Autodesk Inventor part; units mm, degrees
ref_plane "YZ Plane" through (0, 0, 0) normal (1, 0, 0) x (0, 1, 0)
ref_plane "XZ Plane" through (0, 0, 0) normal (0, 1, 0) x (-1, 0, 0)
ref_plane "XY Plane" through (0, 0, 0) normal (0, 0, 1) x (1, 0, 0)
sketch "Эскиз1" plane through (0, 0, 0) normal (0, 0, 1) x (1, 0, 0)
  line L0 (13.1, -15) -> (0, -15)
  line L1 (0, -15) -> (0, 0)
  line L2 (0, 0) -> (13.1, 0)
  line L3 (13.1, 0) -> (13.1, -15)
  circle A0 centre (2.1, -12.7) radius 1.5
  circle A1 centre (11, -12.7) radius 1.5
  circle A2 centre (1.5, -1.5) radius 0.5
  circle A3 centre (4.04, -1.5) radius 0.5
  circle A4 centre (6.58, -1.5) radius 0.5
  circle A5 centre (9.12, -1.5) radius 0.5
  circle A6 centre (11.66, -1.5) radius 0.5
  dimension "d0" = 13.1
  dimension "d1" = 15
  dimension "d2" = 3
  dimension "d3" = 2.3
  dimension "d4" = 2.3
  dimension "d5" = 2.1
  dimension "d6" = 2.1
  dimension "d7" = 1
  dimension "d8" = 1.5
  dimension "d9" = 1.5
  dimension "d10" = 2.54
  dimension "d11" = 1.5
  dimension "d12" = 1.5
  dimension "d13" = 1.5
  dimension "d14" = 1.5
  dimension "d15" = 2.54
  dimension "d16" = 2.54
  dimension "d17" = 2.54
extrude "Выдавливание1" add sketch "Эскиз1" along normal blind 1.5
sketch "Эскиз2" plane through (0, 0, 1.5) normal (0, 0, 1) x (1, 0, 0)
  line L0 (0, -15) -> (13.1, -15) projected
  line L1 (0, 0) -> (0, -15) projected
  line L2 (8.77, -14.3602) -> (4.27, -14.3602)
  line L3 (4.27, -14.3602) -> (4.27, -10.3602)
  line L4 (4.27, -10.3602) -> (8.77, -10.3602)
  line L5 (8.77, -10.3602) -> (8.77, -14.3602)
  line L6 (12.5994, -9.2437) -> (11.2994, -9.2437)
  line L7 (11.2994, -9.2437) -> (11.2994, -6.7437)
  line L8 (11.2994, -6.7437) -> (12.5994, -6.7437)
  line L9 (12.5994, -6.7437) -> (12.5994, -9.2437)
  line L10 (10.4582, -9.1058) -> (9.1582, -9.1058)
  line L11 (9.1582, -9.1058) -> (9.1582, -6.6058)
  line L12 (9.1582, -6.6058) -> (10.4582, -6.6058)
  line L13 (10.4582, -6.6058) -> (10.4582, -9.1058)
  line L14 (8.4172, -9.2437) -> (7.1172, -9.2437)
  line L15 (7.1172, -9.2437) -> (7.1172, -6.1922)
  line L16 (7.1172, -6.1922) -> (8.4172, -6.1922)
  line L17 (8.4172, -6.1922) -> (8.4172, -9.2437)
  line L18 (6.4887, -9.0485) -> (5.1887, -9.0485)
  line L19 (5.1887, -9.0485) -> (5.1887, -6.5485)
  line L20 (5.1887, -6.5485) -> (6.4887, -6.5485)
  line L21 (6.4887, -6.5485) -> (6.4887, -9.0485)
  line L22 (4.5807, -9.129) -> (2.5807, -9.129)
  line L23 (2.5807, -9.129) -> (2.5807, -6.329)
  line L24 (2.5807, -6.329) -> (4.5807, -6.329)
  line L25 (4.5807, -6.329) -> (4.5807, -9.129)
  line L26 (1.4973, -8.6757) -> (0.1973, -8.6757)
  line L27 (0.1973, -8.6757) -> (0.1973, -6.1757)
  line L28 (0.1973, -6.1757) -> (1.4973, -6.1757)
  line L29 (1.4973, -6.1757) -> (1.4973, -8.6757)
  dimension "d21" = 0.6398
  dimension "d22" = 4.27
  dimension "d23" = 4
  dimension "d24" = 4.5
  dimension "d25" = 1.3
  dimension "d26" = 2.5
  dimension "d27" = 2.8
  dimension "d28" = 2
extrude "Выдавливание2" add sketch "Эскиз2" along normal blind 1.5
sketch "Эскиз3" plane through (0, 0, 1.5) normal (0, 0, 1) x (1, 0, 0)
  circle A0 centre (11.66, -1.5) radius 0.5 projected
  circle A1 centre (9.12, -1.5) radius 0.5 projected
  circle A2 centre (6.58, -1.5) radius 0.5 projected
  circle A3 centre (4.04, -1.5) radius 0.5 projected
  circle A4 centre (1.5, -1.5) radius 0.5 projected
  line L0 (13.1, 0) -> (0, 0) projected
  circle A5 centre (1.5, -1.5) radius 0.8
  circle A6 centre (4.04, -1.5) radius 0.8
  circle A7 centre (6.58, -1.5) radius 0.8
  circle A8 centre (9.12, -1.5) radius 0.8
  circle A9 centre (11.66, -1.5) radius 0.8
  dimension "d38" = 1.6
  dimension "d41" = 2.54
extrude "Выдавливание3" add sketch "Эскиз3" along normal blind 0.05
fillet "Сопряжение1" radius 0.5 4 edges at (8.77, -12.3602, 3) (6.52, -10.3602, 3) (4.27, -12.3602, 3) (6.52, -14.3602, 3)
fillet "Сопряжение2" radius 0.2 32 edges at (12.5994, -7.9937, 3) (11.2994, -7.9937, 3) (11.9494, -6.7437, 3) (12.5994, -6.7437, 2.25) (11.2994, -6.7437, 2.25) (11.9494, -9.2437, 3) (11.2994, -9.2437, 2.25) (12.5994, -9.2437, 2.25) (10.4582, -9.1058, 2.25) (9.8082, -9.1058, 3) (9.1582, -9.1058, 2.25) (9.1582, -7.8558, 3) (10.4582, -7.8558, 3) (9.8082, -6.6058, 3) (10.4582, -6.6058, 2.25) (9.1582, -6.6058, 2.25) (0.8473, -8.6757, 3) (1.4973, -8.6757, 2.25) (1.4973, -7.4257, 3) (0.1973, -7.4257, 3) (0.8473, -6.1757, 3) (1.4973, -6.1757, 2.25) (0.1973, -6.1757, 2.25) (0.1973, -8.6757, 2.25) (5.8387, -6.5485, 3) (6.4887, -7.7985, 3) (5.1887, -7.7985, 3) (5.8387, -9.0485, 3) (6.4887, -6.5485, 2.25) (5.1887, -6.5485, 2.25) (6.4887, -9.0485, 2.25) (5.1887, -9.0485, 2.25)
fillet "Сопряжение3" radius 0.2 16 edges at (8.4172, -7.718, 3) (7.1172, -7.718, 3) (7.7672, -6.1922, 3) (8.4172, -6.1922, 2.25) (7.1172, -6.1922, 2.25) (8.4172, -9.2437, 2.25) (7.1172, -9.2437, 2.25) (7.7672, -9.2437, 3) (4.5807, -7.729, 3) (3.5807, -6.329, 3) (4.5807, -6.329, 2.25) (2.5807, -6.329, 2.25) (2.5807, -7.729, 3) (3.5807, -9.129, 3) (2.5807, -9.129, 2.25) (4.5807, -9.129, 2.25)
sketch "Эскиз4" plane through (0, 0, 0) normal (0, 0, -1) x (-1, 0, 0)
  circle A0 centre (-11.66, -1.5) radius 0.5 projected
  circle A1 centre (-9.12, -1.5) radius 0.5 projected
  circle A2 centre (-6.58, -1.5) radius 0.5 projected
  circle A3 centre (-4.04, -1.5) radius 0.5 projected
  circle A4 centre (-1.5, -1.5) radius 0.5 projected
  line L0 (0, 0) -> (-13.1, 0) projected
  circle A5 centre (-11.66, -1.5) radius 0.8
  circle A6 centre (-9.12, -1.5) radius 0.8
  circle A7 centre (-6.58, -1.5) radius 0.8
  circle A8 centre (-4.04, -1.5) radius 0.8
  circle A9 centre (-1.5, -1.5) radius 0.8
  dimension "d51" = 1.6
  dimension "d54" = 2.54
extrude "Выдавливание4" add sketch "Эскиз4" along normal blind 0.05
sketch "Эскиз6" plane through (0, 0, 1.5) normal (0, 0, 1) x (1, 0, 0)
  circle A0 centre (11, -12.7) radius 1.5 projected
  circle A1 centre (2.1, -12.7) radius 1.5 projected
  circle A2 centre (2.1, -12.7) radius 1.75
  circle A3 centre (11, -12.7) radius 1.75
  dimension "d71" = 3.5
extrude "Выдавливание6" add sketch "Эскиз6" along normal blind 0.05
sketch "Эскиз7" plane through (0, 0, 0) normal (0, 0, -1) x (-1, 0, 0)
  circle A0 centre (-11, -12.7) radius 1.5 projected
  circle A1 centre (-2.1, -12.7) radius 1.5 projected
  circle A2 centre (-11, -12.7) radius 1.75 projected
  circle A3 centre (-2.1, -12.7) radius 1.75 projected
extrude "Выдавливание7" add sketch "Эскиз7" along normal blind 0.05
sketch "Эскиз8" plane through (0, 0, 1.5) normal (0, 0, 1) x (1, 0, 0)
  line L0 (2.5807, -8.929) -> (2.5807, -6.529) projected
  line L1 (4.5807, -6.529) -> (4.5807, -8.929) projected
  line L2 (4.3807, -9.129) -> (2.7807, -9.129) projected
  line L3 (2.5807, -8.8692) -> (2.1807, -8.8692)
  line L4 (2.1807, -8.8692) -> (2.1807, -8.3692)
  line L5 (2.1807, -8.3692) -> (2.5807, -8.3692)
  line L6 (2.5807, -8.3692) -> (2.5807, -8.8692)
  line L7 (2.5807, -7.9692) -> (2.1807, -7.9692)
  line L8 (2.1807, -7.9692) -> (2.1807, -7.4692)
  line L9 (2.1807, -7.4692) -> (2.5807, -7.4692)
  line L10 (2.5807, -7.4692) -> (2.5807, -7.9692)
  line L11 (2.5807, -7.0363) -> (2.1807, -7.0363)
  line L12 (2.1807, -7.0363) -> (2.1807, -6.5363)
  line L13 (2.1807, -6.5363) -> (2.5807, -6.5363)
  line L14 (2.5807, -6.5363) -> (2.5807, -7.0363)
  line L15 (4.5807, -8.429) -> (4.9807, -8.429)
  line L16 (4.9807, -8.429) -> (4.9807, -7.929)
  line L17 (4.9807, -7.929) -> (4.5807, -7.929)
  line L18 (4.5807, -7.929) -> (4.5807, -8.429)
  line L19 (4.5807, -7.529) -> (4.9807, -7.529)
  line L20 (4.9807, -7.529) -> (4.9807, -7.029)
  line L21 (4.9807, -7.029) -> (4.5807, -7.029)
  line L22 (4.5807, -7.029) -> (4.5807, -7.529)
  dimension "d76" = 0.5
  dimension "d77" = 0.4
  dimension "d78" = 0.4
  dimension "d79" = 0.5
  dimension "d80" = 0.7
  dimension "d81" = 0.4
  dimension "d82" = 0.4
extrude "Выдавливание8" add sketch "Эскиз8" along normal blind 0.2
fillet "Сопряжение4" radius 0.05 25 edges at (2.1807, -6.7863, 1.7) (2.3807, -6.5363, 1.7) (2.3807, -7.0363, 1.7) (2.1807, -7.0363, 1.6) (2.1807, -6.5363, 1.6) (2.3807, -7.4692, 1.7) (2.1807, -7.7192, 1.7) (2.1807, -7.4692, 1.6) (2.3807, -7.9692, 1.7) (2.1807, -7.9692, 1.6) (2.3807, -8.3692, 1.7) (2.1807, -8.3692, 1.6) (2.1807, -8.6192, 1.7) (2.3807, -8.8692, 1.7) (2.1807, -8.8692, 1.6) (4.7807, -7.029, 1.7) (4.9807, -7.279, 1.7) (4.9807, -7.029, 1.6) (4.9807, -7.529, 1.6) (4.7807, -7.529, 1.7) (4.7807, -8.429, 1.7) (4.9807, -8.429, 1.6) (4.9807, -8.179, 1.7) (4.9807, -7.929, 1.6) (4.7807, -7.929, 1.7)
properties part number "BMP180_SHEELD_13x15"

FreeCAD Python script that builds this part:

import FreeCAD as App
import Part
import Sketcher

V = App.Vector
Q = App.Units.Quantity


def edges_at(feature, points):
    """Names of the edges that pass closest to the given points."""
    edges = feature.Shape.Edges
    near = lambda p: min(range(len(edges)), key=lambda i: edges[i].distToShape(Part.Vertex(*p))[0])
    return sorted({f"Edge{near(p) + 1}" for p in points})

doc = App.newDocument("Part")
body = doc.addObject("PartDesign::Body", "Body")

sketch1 = body.newObject("Sketcher::SketchObject", "Sketch")
sketch1.AttachmentSupport = (doc.getObject("XY_Plane"), [""])
sketch1.MapMode = "FlatFace"
sketch1.addGeometry(Part.LineSegment(V(0, -15, 0), V(13.1, -15, 0)), False)
sketch1.addGeometry(Part.LineSegment(V(13.1, -15, 0), V(13.1, 0, 0)), False)
sketch1.addGeometry(Part.LineSegment(V(13.1, 0, 0), V(0, 0, 0)), False)
sketch1.addGeometry(Part.LineSegment(V(0, 0, 0), V(0, -15, 0)), False)
sketch1.addGeometry(Part.Circle(V(2.1, -12.7, 0), V(0, 0, 1), 1.5), False)
sketch1.addGeometry(Part.Circle(V(11, -12.7, 0), V(0, 0, 1), 1.5), False)
sketch1.addGeometry(Part.Circle(V(1.5, -1.5, 0), V(0, 0, 1), 0.5), False)
sketch1.addGeometry(Part.Circle(V(4.04, -1.5, 0), V(0, 0, 1), 0.5), False)
sketch1.addGeometry(Part.Circle(V(6.58, -1.5, 0), V(0, 0, 1), 0.5), False)
sketch1.addGeometry(Part.Circle(V(9.12, -1.5, 0), V(0, 0, 1), 0.5), False)
sketch1.addGeometry(Part.Circle(V(11.66, -1.5, 0), V(0, 0, 1), 0.5), False)
sketch1.addConstraint(Sketcher.Constraint("Coincident", 0, 2, 1, 1))
sketch1.addConstraint(Sketcher.Constraint("Coincident", 1, 2, 2, 1))
sketch1.addConstraint(Sketcher.Constraint("Coincident", 2, 2, 3, 1))
sketch1.addConstraint(Sketcher.Constraint("Coincident", 3, 2, 0, 1))
sketch1.addConstraint(Sketcher.Constraint("Horizontal", 0))
sketch1.addConstraint(Sketcher.Constraint("Vertical", 1))
sketch1.addConstraint(Sketcher.Constraint("Horizontal", 2))
sketch1.addConstraint(Sketcher.Constraint("Vertical", 3))
sketch1.addConstraint(Sketcher.Constraint("Coincident", 2, 2, -1, 1))
sketch1.addConstraint(Sketcher.Constraint("Equal", 4, 5))
sketch1.addConstraint(Sketcher.Constraint("Equal", 6, 7))
sketch1.addConstraint(Sketcher.Constraint("Equal", 7, 8))
sketch1.addConstraint(Sketcher.Constraint("Equal", 8, 9))
sketch1.addConstraint(Sketcher.Constraint("Equal", 9, 10))
sketch1.addConstraint(Sketcher.Constraint("Horizontal", 4, 3, 5, 3))
sketch1.addConstraint(Sketcher.Constraint("Horizontal", 6, 3, 7, 3))
sketch1.addConstraint(Sketcher.Constraint("Horizontal", 7, 3, 8, 3))
sketch1.addConstraint(Sketcher.Constraint("Horizontal", 8, 3, 9, 3))
sketch1.addConstraint(Sketcher.Constraint("Horizontal", 9, 3, 10, 3))
sketch1.addConstraint(Sketcher.Constraint("Diameter", 4, Q("3 mm")))
sketch1.addConstraint(Sketcher.Constraint("Diameter", 6, Q("1 mm")))
sketch1.addConstraint(Sketcher.Constraint("DistanceY", 1, 1, 1, 2, Q("15 mm")))
sketch1.addConstraint(Sketcher.Constraint("DistanceX", 0, 1, 0, 2, Q("13.1 mm")))
sketch1.addConstraint(Sketcher.Constraint("DistanceX", -1, 1, 4, 3, Q("2.1 mm")))
sketch1.addConstraint(Sketcher.Constraint("DistanceX", -1, 1, 6, 3, Q("1.5 mm")))
sketch1.addConstraint(Sketcher.Constraint("DistanceY", 6, 3, -1, 1, Q("1.5 mm")))
sketch1.addConstraint(Sketcher.Constraint("DistanceX", 5, 3, 0, 2, Q("2.1 mm")))
sketch1.addConstraint(Sketcher.Constraint("DistanceY", 0, 2, 5, 3, Q("2.3 mm")))
sketch1.addConstraint(Sketcher.Constraint("DistanceX", 6, 3, 7, 3, Q("2.54 mm")))
sketch1.addConstraint(Sketcher.Constraint("DistanceX", 7, 3, 8, 3, Q("2.54 mm")))
sketch1.addConstraint(Sketcher.Constraint("DistanceX", 8, 3, 9, 3, Q("2.54 mm")))
sketch1.addConstraint(Sketcher.Constraint("DistanceX", 9, 3, 10, 3, Q("2.54 mm")))
pad1 = body.newObject("PartDesign::Pad", "Pad")
pad1.Profile = sketch1
pad1.Length = 1.5

sketch2 = body.newObject("Sketcher::SketchObject", "Sketch001")
sketch2.AttachmentSupport = (doc.getObject("XY_Plane"), [""])
sketch2.MapMode = "FlatFace"
sketch2.AttachmentOffset = App.Placement(V(0, 0, 1.5), App.Rotation())
sketch2.addGeometry(Part.LineSegment(V(4.27, -14.3602, 0), V(8.77, -14.3602, 0)), False)
sketch2.addGeometry(Part.LineSegment(V(8.77, -14.3602, 0), V(8.77, -10.3602, 0)), False)
sketch2.addGeometry(Part.LineSegment(V(8.77, -10.3602, 0), V(4.27, -10.3602, 0)), False)
sketch2.addGeometry(Part.LineSegment(V(4.27, -10.3602, 0), V(4.27, -14.3602, 0)), False)
sketch2.addGeometry(Part.LineSegment(V(11.2994, -9.2437, 0), V(12.5994, -9.2437, 0)), False)
sketch2.addGeometry(Part.LineSegment(V(12.5994, -9.2437, 0), V(12.5994, -6.7437, 0)), False)
sketch2.addGeometry(Part.LineSegment(V(12.5994, -6.7437, 0), V(11.2994, -6.7437, 0)), False)
sketch2.addGeometry(Part.LineSegment(V(11.2994, -6.7437, 0), V(11.2994, -9.2437, 0)), False)
sketch2.addGeometry(Part.LineSegment(V(9.1582, -9.1058, 0), V(10.4582, -9.1058, 0)), False)
sketch2.addGeometry(Part.LineSegment(V(10.4582, -9.1058, 0), V(10.4582, -6.6058, 0)), False)
sketch2.addGeometry(Part.LineSegment(V(10.4582, -6.6058, 0), V(9.1582, -6.6058, 0)), False)
sketch2.addGeometry(Part.LineSegment(V(9.1582, -6.6058, 0), V(9.1582, -9.1058, 0)), False)
sketch2.addGeometry(Part.LineSegment(V(7.1172, -9.2437, 0), V(8.4172, -9.2437, 0)), False)
sketch2.addGeometry(Part.LineSegment(V(8.4172, -9.2437, 0), V(8.4172, -6.1922, 0)), False)
sketch2.addGeometry(Part.LineSegment(V(8.4172, -6.1922, 0), V(7.1172, -6.1922, 0)), False)
sketch2.addGeometry(Part.LineSegment(V(7.1172, -6.1922, 0), V(7.1172, -9.2437, 0)), False)
sketch2.addGeometry(Part.LineSegment(V(5.1887, -9.0485, 0), V(6.4887, -9.0485, 0)), False)
sketch2.addGeometry(Part.LineSegment(V(6.4887, -9.0485, 0), V(6.4887, -6.5485, 0)), False)
sketch2.addGeometry(Part.LineSegment(V(6.4887, -6.5485, 0), V(5.1887, -6.5485, 0)), False)
sketch2.addGeometry(Part.LineSegment(V(5.1887, -6.5485, 0), V(5.1887, -9.0485, 0)), False)
sketch2.addGeometry(Part.LineSegment(V(2.5807, -9.129, 0), V(4.5807, -9.129, 0)), False)
sketch2.addGeometry(Part.LineSegment(V(4.5807, -9.129, 0), V(4.5807, -6.329, 0)), False)
sketch2.addGeometry(Part.LineSegment(V(4.5807, -6.329, 0), V(2.5807, -6.329, 0)), False)
sketch2.addGeometry(Part.LineSegment(V(2.5807, -6.329, 0), V(2.5807, -9.129, 0)), False)
sketch2.addGeometry(Part.LineSegment(V(0.1973, -8.6757, 0), V(1.4973, -8.6757, 0)), False)
sketch2.addGeometry(Part.LineSegment(V(1.4973, -8.6757, 0), V(1.4973, -6.1757, 0)), False)
sketch2.addGeometry(Part.LineSegment(V(1.4973, -6.1757, 0), V(0.1973, -6.1757, 0)), False)
sketch2.addGeometry(Part.LineSegment(V(0.1973, -6.1757, 0), V(0.1973, -8.6757, 0)), False)
sketch2.addConstraint(Sketcher.Constraint("Coincident", 0, 2, 1, 1))
sketch2.addConstraint(Sketcher.Constraint("Coincident", 1, 2, 2, 1))
sketch2.addConstraint(Sketcher.Constraint("Coincident", 2, 2, 3, 1))
sketch2.addConstraint(Sketcher.Constraint("Coincident", 3, 2, 0, 1))
sketch2.addConstraint(Sketcher.Constraint("Coincident", 4, 2, 5, 1))
sketch2.addConstraint(Sketcher.Constraint("Coincident", 5, 2, 6, 1))
sketch2.addConstraint(Sketcher.Constraint("Coincident", 6, 2, 7, 1))
sketch2.addConstraint(Sketcher.Constraint("Coincident", 7, 2, 4, 1))
sketch2.addConstraint(Sketcher.Constraint("Coincident", 8, 2, 9, 1))
sketch2.addConstraint(Sketcher.Constraint("Coincident", 9, 2, 10, 1))
sketch2.addConstraint(Sketcher.Constraint("Coincident", 10, 2, 11, 1))
sketch2.addConstraint(Sketcher.Constraint("Coincident", 11, 2, 8, 1))
sketch2.addConstraint(Sketcher.Constraint("Coincident", 12, 2, 13, 1))
sketch2.addConstraint(Sketcher.Constraint("Coincident", 13, 2, 14, 1))
sketch2.addConstraint(Sketcher.Constraint("Coincident", 14, 2, 15, 1))
sketch2.addConstraint(Sketcher.Constraint("Coincident", 15, 2, 12, 1))
sketch2.addConstraint(Sketcher.Constraint("Coincident", 16, 2, 17, 1))
sketch2.addConstraint(Sketcher.Constraint("Coincident", 17, 2, 18, 1))
sketch2.addConstraint(Sketcher.Constraint("Coincident", 18, 2, 19, 1))
sketch2.addConstraint(Sketcher.Constraint("Coincident", 19, 2, 16, 1))
sketch2.addConstraint(Sketcher.Constraint("Coincident", 20, 2, 21, 1))
sketch2.addConstraint(Sketcher.Constraint("Coincident", 21, 2, 22, 1))
sketch2.addConstraint(Sketcher.Constraint("Coincident", 22, 2, 23, 1))
sketch2.addConstraint(Sketcher.Constraint("Coincident", 23, 2, 20, 1))
sketch2.addConstraint(Sketcher.Constraint("Coincident", 24, 2, 25, 1))
sketch2.addConstraint(Sketcher.Constraint("Coincident", 25, 2, 26, 1))
sketch2.addConstraint(Sketcher.Constraint("Coincident", 26, 2, 27, 1))
sketch2.addConstraint(Sketcher.Constraint("Coincident", 27, 2, 24, 1))
sketch2.addConstraint(Sketcher.Constraint("Horizontal", 0))
sketch2.addConstraint(Sketcher.Constraint("Vertical", 1))
sketch2.addConstraint(Sketcher.Constraint("Horizontal", 2))
sketch2.addConstraint(Sketcher.Constraint("Vertical", 3))
sketch2.addConstraint(Sketcher.Constraint("Horizontal", 4))
sketch2.addConstraint(Sketcher.Constraint("Vertical", 5))
sketch2.addConstraint(Sketcher.Constraint("Horizontal", 6))
sketch2.addConstraint(Sketcher.Constraint("Vertical", 7))
sketch2.addConstraint(Sketcher.Constraint("Horizontal", 8))
sketch2.addConstraint(Sketcher.Constraint("Vertical", 9))
sketch2.addConstraint(Sketcher.Constraint("Horizontal", 10))
sketch2.addConstraint(Sketcher.Constraint("Vertical", 11))
sketch2.addConstraint(Sketcher.Constraint("Horizontal", 12))
sketch2.addConstraint(Sketcher.Constraint("Vertical", 13))
sketch2.addConstraint(Sketcher.Constraint("Horizontal", 14))
sketch2.addConstraint(Sketcher.Constraint("Vertical", 15))
sketch2.addConstraint(Sketcher.Constraint("Horizontal", 16))
sketch2.addConstraint(Sketcher.Constraint("Vertical", 17))
sketch2.addConstraint(Sketcher.Constraint("Horizontal", 18))
sketch2.addConstraint(Sketcher.Constraint("Vertical", 19))
sketch2.addConstraint(Sketcher.Constraint("Horizontal", 20))
sketch2.addConstraint(Sketcher.Constraint("Vertical", 21))
sketch2.addConstraint(Sketcher.Constraint("Horizontal", 22))
sketch2.addConstraint(Sketcher.Constraint("Vertical", 23))
sketch2.addConstraint(Sketcher.Constraint("Horizontal", 24))
sketch2.addConstraint(Sketcher.Constraint("Vertical", 25))
sketch2.addConstraint(Sketcher.Constraint("Horizontal", 26))
sketch2.addConstraint(Sketcher.Constraint("Vertical", 27))
sketch2.addConstraint(Sketcher.Constraint("Horizontal", 7, 2, 12, 2))
sketch2.addConstraint(Sketcher.Constraint("Equal", 6, 8))
sketch2.addConstraint(Sketcher.Constraint("Equal", 10, 12))
sketch2.addConstraint(Sketcher.Constraint("Equal", 14, 16))
sketch2.addConstraint(Sketcher.Constraint("Equal", 18, 24))
sketch2.addConstraint(Sketcher.Constraint("Equal", 7, 9))
sketch2.addConstraint(Sketcher.Constraint("Equal", 11, 17))
sketch2.addConstraint(Sketcher.Constraint("Equal", 19, 25))
sketch2.addConstraint(Sketcher.Constraint("DistanceX", 20, 1, 20, 2, Q("2 mm")))
sketch2.addConstraint(Sketcher.Constraint("DistanceY", 1, 1, 1, 2, Q("4 mm")))
sketch2.addConstraint(Sketcher.Constraint("DistanceX", 0, 1, 0, 2, Q("4.5 mm")))
sketch2.addConstraint(Sketcher.Constraint("DistanceX", 4, 1, 4, 2, Q("1.3 mm")))
sketch2.addConstraint(Sketcher.Constraint("DistanceY", 5, 1, 5, 2, Q("2.5 mm")))
sketch2.addConstraint(Sketcher.Constraint("DistanceY", 21, 1, 21, 2, Q("2.8 mm")))
sketch2.addConstraint(Sketcher.Constraint("DistanceX", -1, 1, 2, 2, Q("4.27 mm")))
sketch2.addConstraint(Sketcher.Constraint("DistanceY", 13, 1, 13, 2, Q("3.0515 mm")))
sketch2.addConstraint(Sketcher.Constraint("DistanceY", 20, 2, -1, 1, Q("9.129 mm")))
sketch2.addConstraint(Sketcher.Constraint("DistanceY", 7, 2, 8, 2, Q("0.138 mm")))
sketch2.addConstraint(Sketcher.Constraint("DistanceX", 12, 2, 11, 2, Q("0.741 mm")))
sketch2.addConstraint(Sketcher.Constraint("DistanceX", 20, 2, 19, 2, Q("0.608 mm")))
sketch2.addConstraint(Sketcher.Constraint("DistanceY", 0, 2, -1, 1, Q("14.3602 mm")))
sketch2.addConstraint(Sketcher.Constraint("DistanceX", -1, 1, 4, 2, Q("12.5994 mm")))
sketch2.addConstraint(Sketcher.Constraint("DistanceY", 4, 2, -1, 1, Q("9.2437 mm")))
sketch2.addConstraint(Sketcher.Constraint("DistanceX", -1, 1, 8, 2, Q("10.4582 mm")))
sketch2.addConstraint(Sketcher.Constraint("DistanceX", -1, 1, 16, 2, Q("6.4887 mm")))
sketch2.addConstraint(Sketcher.Constraint("DistanceY", 16, 2, -1, 1, Q("9.0485 mm")))
sketch2.addConstraint(Sketcher.Constraint("DistanceX", -1, 1, 24, 2, Q("1.4973 mm")))
sketch2.addConstraint(Sketcher.Constraint("DistanceY", 24, 2, -1, 1, Q("8.6757 mm")))
pad2 = body.newObject("PartDesign::Pad", "Pad001")
pad2.Profile = sketch2
pad2.Length = 1.5

sketch3 = body.newObject("Sketcher::SketchObject", "Sketch002")
sketch3.AttachmentSupport = (doc.getObject("XY_Plane"), [""])
sketch3.MapMode = "FlatFace"
sketch3.AttachmentOffset = App.Placement(V(0, 0, 1.5), App.Rotation())
sketch3.addGeometry(Part.Circle(V(1.5, -1.5, 0), V(0, 0, 1), 0.8), False)
sketch3.addGeometry(Part.Circle(V(1.5, -1.5, 0), V(0, 0, 1), 0.5), False)
sketch3.addGeometry(Part.Circle(V(4.04, -1.5, 0), V(0, 0, 1), 0.8), False)
sketch3.addGeometry(Part.Circle(V(4.04, -1.5, 0), V(0, 0, 1), 0.5), False)
sketch3.addGeometry(Part.Circle(V(6.58, -1.5, 0), V(0, 0, 1), 0.8), False)
sketch3.addGeometry(Part.Circle(V(6.58, -1.5, 0), V(0, 0, 1), 0.5), False)
sketch3.addGeometry(Part.Circle(V(9.12, -1.5, 0), V(0, 0, 1), 0.8), False)
sketch3.addGeometry(Part.Circle(V(9.12, -1.5, 0), V(0, 0, 1), 0.5), False)
sketch3.addGeometry(Part.Circle(V(11.66, -1.5, 0), V(0, 0, 1), 0.8), False)
sketch3.addGeometry(Part.Circle(V(11.66, -1.5, 0), V(0, 0, 1), 0.5), False)
sketch3.addConstraint(Sketcher.Constraint("Coincident", 1, 3, 0, 3))
sketch3.addConstraint(Sketcher.Constraint("Coincident", 3, 3, 2, 3))
sketch3.addConstraint(Sketcher.Constraint("Coincident", 5, 3, 4, 3))
sketch3.addConstraint(Sketcher.Constraint("Coincident", 7, 3, 6, 3))
sketch3.addConstraint(Sketcher.Constraint("Coincident", 9, 3, 8, 3))
sketch3.addConstraint(Sketcher.Constraint("Equal", 0, 2))
sketch3.addConstraint(Sketcher.Constraint("Equal", 1, 3))
sketch3.addConstraint(Sketcher.Constraint("Equal", 2, 4))
sketch3.addConstraint(Sketcher.Constraint("Equal", 3, 5))
sketch3.addConstraint(Sketcher.Constraint("Equal", 4, 6))
sketch3.addConstraint(Sketcher.Constraint("Equal", 5, 7))
sketch3.addConstraint(Sketcher.Constraint("Equal", 6, 8))
sketch3.addConstraint(Sketcher.Constraint("Equal", 7, 9))
sketch3.addConstraint(Sketcher.Constraint("Horizontal", 1, 3, 2, 3))
sketch3.addConstraint(Sketcher.Constraint("Horizontal", 3, 3, 4, 3))
sketch3.addConstraint(Sketcher.Constraint("Horizontal", 5, 3, 6, 3))
sketch3.addConstraint(Sketcher.Constraint("Horizontal", 7, 3, 8, 3))
sketch3.addConstraint(Sketcher.Constraint("Diameter", 0, Q("1.6 mm")))
sketch3.addConstraint(Sketcher.Constraint("Diameter", 1, Q("1 mm")))
sketch3.addConstraint(Sketcher.Constraint("DistanceX", 0, 3, 2, 3, Q("2.54 mm")))
sketch3.addConstraint(Sketcher.Constraint("DistanceX", 2, 3, 4, 3, Q("2.54 mm")))
sketch3.addConstraint(Sketcher.Constraint("DistanceX", 4, 3, 6, 3, Q("2.54 mm")))
sketch3.addConstraint(Sketcher.Constraint("DistanceX", 6, 3, 8, 3, Q("2.54 mm")))
sketch3.addConstraint(Sketcher.Constraint("DistanceX", -1, 1, 0, 3, Q("1.5 mm")))
sketch3.addConstraint(Sketcher.Constraint("DistanceY", 0, 3, -1, 1, Q("1.5 mm")))
pad3 = body.newObject("PartDesign::Pad", "Pad002")
pad3.Profile = sketch3
pad3.Length = 0.05
doc.recompute()

fillet = body.newObject("PartDesign::Fillet", "Fillet")
fillet.Base = (pad3, edges_at(pad3, [
    (8.77, -12.36, 3),
    (6.52, -10.36, 3),
    (4.27, -12.36, 3),
    (6.52, -14.36, 3),
]))
fillet.Radius = 0.5
doc.recompute()

fillet2 = body.newObject("PartDesign::Fillet", "Fillet001")
fillet2.Base = (fillet, edges_at(fillet, [
    (12.599, -7.994, 3),
    (11.299, -7.994, 3),
    (11.949, -6.744, 3),
    (12.599, -6.744, 2.25),
    (11.299, -6.744, 2.25),
    (11.949, -9.244, 3),
    (11.299, -9.244, 2.25),
    (12.599, -9.244, 2.25),
    (10.458, -9.106, 2.25),
    (9.808, -9.106, 3),
    (9.158, -9.106, 2.25),
    (9.158, -7.856, 3),
    (10.458, -7.856, 3),
    (9.808, -6.606, 3),
    (10.458, -6.606, 2.25),
    (9.158, -6.606, 2.25),
    (0.847, -8.676, 3),
    (1.497, -8.676, 2.25),
    (1.497, -7.426, 3),
    (0.197, -7.426, 3),
    (0.847, -6.176, 3),
    (1.497, -6.176, 2.25),
    (0.197, -6.176, 2.25),
    (0.197, -8.676, 2.25),
    (5.839, -6.548, 3),
    (6.489, -7.798, 3),
    (5.189, -7.798, 3),
    (5.839, -9.049, 3),
    (6.489, -6.548, 2.25),
    (5.189, -6.548, 2.25),
    (6.489, -9.049, 2.25),
    (5.189, -9.049, 2.25),
]))
fillet2.Radius = 0.2
doc.recompute()

fillet3 = body.newObject("PartDesign::Fillet", "Fillet002")
fillet3.Base = (fillet2, edges_at(fillet2, [
    (8.417, -7.718, 3),
    (7.117, -7.718, 3),
    (7.767, -6.192, 3),
    (8.417, -6.192, 2.25),
    (7.117, -6.192, 2.25),
    (8.417, -9.244, 2.25),
    (7.117, -9.244, 2.25),
    (7.767, -9.244, 3),
    (4.581, -7.729, 3),
    (3.581, -6.329, 3),
    (4.581, -6.329, 2.25),
    (2.581, -6.329, 2.25),
    (2.581, -7.729, 3),
    (3.581, -9.129, 3),
    (2.581, -9.129, 2.25),
    (4.581, -9.129, 2.25),
]))
fillet3.Radius = 0.2

sketch4 = body.newObject("Sketcher::SketchObject", "Sketch003")
sketch4.AttachmentSupport = (doc.getObject("XY_Plane"), [""])
sketch4.MapMode = "FlatFace"
sketch4.addGeometry(Part.Circle(V(11.66, -1.5, 0), V(0, 0, 1), 0.8), False)
sketch4.addGeometry(Part.Circle(V(11.66, -1.5, 0), V(0, 0, 1), 0.5), False)
sketch4.addGeometry(Part.Circle(V(9.12, -1.5, 0), V(0, 0, 1), 0.8), False)
sketch4.addGeometry(Part.Circle(V(9.12, -1.5, 0), V(0, 0, 1), 0.5), False)
sketch4.addGeometry(Part.Circle(V(6.58, -1.5, 0), V(0, 0, 1), 0.8), False)
sketch4.addGeometry(Part.Circle(V(6.58, -1.5, 0), V(0, 0, 1), 0.5), False)
sketch4.addGeometry(Part.Circle(V(4.04, -1.5, 0), V(0, 0, 1), 0.8), False)
sketch4.addGeometry(Part.Circle(V(4.04, -1.5, 0), V(0, 0, 1), 0.5), False)
sketch4.addGeometry(Part.Circle(V(1.5, -1.5, 0), V(0, 0, 1), 0.8), False)
sketch4.addGeometry(Part.Circle(V(1.5, -1.5, 0), V(0, 0, 1), 0.5), False)
sketch4.addConstraint(Sketcher.Constraint("Coincident", 1, 3, 0, 3))
sketch4.addConstraint(Sketcher.Constraint("Coincident", 3, 3, 2, 3))
sketch4.addConstraint(Sketcher.Constraint("Coincident", 5, 3, 4, 3))
sketch4.addConstraint(Sketcher.Constraint("Coincident", 7, 3, 6, 3))
sketch4.addConstraint(Sketcher.Constraint("Coincident", 9, 3, 8, 3))
sketch4.addConstraint(Sketcher.Constraint("Equal", 0, 2))
sketch4.addConstraint(Sketcher.Constraint("Equal", 1, 3))
sketch4.addConstraint(Sketcher.Constraint("Equal", 2, 4))
sketch4.addConstraint(Sketcher.Constraint("Equal", 3, 5))
sketch4.addConstraint(Sketcher.Constraint("Equal", 4, 6))
sketch4.addConstraint(Sketcher.Constraint("Equal", 5, 7))
sketch4.addConstraint(Sketcher.Constraint("Equal", 6, 8))
sketch4.addConstraint(Sketcher.Constraint("Equal", 7, 9))
sketch4.addConstraint(Sketcher.Constraint("Horizontal", 1, 3, 2, 3))
sketch4.addConstraint(Sketcher.Constraint("Horizontal", 3, 3, 4, 3))
sketch4.addConstraint(Sketcher.Constraint("Horizontal", 5, 3, 6, 3))
sketch4.addConstraint(Sketcher.Constraint("Horizontal", 7, 3, 8, 3))
sketch4.addConstraint(Sketcher.Constraint("Diameter", 0, Q("1.6 mm")))
sketch4.addConstraint(Sketcher.Constraint("Diameter", 1, Q("1 mm")))
sketch4.addConstraint(Sketcher.Constraint("DistanceX", 2, 3, 0, 3, Q("2.54 mm")))
sketch4.addConstraint(Sketcher.Constraint("DistanceX", 4, 3, 2, 3, Q("2.54 mm")))
sketch4.addConstraint(Sketcher.Constraint("DistanceX", 6, 3, 4, 3, Q("2.54 mm")))
sketch4.addConstraint(Sketcher.Constraint("DistanceX", 8, 3, 6, 3, Q("2.54 mm")))
sketch4.addConstraint(Sketcher.Constraint("DistanceY", 0, 3, -1, 1, Q("1.5 mm")))
sketch4.addConstraint(Sketcher.Constraint("DistanceX", -1, 1, 8, 3, Q("1.5 mm")))
pad4 = body.newObject("PartDesign::Pad", "Pad003")
pad4.Profile = sketch4
pad4.Length = 0.05
pad4.Reversed = True

sketch5 = body.newObject("Sketcher::SketchObject", "Sketch004")
sketch5.AttachmentSupport = (doc.getObject("XY_Plane"), [""])
sketch5.MapMode = "FlatFace"
sketch5.AttachmentOffset = App.Placement(V(0, 0, 1.5), App.Rotation())
sketch5.addGeometry(Part.Circle(V(2.1, -12.7, 0), V(0, 0, 1), 1.75), False)
sketch5.addGeometry(Part.Circle(V(2.1, -12.7, 0), V(0, 0, 1), 1.5), False)
sketch5.addGeometry(Part.Circle(V(11, -12.7, 0), V(0, 0, 1), 1.75), False)
sketch5.addGeometry(Part.Circle(V(11, -12.7, 0), V(0, 0, 1), 1.5), False)
sketch5.addConstraint(Sketcher.Constraint("Coincident", 1, 3, 0, 3))
sketch5.addConstraint(Sketcher.Constraint("Coincident", 3, 3, 2, 3))
sketch5.addConstraint(Sketcher.Constraint("Equal", 0, 2))
sketch5.addConstraint(Sketcher.Constraint("Equal", 1, 3))
sketch5.addConstraint(Sketcher.Constraint("Horizontal", 1, 3, 2, 3))
sketch5.addConstraint(Sketcher.Constraint("Diameter", 0, Q("3.5 mm")))
sketch5.addConstraint(Sketcher.Constraint("Diameter", 1, Q("3 mm")))
sketch5.addConstraint(Sketcher.Constraint("DistanceX", -1, 1, 2, 3, Q("11 mm")))
sketch5.addConstraint(Sketcher.Constraint("DistanceX", -1, 1, 0, 3, Q("2.1 mm")))
sketch5.addConstraint(Sketcher.Constraint("DistanceY", 0, 3, -1, 1, Q("12.7 mm")))
pad5 = body.newObject("PartDesign::Pad", "Pad004")
pad5.Profile = sketch5
pad5.Length = 0.05

sketch6 = body.newObject("Sketcher::SketchObject", "Sketch005")
sketch6.AttachmentSupport = (doc.getObject("XY_Plane"), [""])
sketch6.MapMode = "FlatFace"
sketch6.addGeometry(Part.Circle(V(11, -12.7, 0), V(0, 0, 1), 1.75), False)
sketch6.addGeometry(Part.Circle(V(11, -12.7, 0), V(0, 0, 1), 1.5), False)
sketch6.addGeometry(Part.Circle(V(2.1, -12.7, 0), V(0, 0, 1), 1.75), False)
sketch6.addGeometry(Part.Circle(V(2.1, -12.7, 0), V(0, 0, 1), 1.5), False)
sketch6.addConstraint(Sketcher.Constraint("Coincident", 1, 3, 0, 3))
sketch6.addConstraint(Sketcher.Constraint("Coincident", 3, 3, 2, 3))
sketch6.addConstraint(Sketcher.Constraint("Equal", 0, 2))
sketch6.addConstraint(Sketcher.Constraint("Equal", 1, 3))
sketch6.addConstraint(Sketcher.Constraint("Horizontal", 1, 3, 2, 3))
sketch6.addConstraint(Sketcher.Constraint("Diameter", 1, Q("3 mm")))
sketch6.addConstraint(Sketcher.Constraint("Diameter", 0, Q("3.5 mm")))
sketch6.addConstraint(Sketcher.Constraint("DistanceX", -1, 1, 0, 3, Q("11 mm")))
sketch6.addConstraint(Sketcher.Constraint("DistanceY", 0, 3, -1, 1, Q("12.7 mm")))
sketch6.addConstraint(Sketcher.Constraint("DistanceX", -1, 1, 2, 3, Q("2.1 mm")))
pad6 = body.newObject("PartDesign::Pad", "Pad005")
pad6.Profile = sketch6
pad6.Length = 0.05
pad6.Reversed = True

sketch7 = body.newObject("Sketcher::SketchObject", "Sketch006")
sketch7.AttachmentSupport = (doc.getObject("XY_Plane"), [""])
sketch7.MapMode = "FlatFace"
sketch7.AttachmentOffset = App.Placement(V(0, 0, 1.5), App.Rotation())
sketch7.addGeometry(Part.LineSegment(V(2.1807, -8.8692, 0), V(2.5807, -8.8692, 0)), False)
sketch7.addGeometry(Part.LineSegment(V(2.5807, -8.8692, 0), V(2.5807, -8.3692, 0)), False)
sketch7.addGeometry(Part.LineSegment(V(2.5807, -8.3692, 0), V(2.1807, -8.3692, 0)), False)
sketch7.addGeometry(Part.LineSegment(V(2.1807, -8.3692, 0), V(2.1807, -8.8692, 0)), False)
sketch7.addGeometry(Part.LineSegment(V(2.1807, -7.0363, 0), V(2.5807, -7.0363, 0)), False)
sketch7.addGeometry(Part.LineSegment(V(2.5807, -7.0363, 0), V(2.5807, -6.5363, 0)), False)
sketch7.addGeometry(Part.LineSegment(V(2.5807, -6.5363, 0), V(2.1807, -6.5363, 0)), False)
sketch7.addGeometry(Part.LineSegment(V(2.1807, -6.5363, 0), V(2.1807, -7.0363, 0)), False)
sketch7.addGeometry(Part.LineSegment(V(2.1807, -7.9692, 0), V(2.5807, -7.9692, 0)), False)
sketch7.addGeometry(Part.LineSegment(V(2.5807, -7.9692, 0), V(2.5807, -7.4692, 0)), False)
sketch7.addGeometry(Part.LineSegment(V(2.5807, -7.4692, 0), V(2.1807, -7.4692, 0)), False)
sketch7.addGeometry(Part.LineSegment(V(2.1807, -7.4692, 0), V(2.1807, -7.9692, 0)), False)
sketch7.addGeometry(Part.LineSegment(V(4.9807, -7.029, 0), V(4.5807, -7.029, 0)), False)
sketch7.addGeometry(Part.LineSegment(V(4.5807, -7.029, 0), V(4.5807, -7.529, 0)), False)
sketch7.addGeometry(Part.LineSegment(V(4.5807, -7.529, 0), V(4.9807, -7.529, 0)), False)
sketch7.addGeometry(Part.LineSegment(V(4.9807, -7.529, 0), V(4.9807, -7.029, 0)), False)
sketch7.addGeometry(Part.LineSegment(V(4.9807, -7.929, 0), V(4.5807, -7.929, 0)), False)
sketch7.addGeometry(Part.LineSegment(V(4.5807, -7.929, 0), V(4.5807, -8.429, 0)), False)
sketch7.addGeometry(Part.LineSegment(V(4.5807, -8.429, 0), V(4.9807, -8.429, 0)), False)
sketch7.addGeometry(Part.LineSegment(V(4.9807, -8.429, 0), V(4.9807, -7.929, 0)), False)
sketch7.addConstraint(Sketcher.Constraint("Coincident", 0, 2, 1, 1))
sketch7.addConstraint(Sketcher.Constraint("Coincident", 1, 2, 2, 1))
sketch7.addConstraint(Sketcher.Constraint("Coincident", 2, 2, 3, 1))
sketch7.addConstraint(Sketcher.Constraint("Coincident", 3, 2, 0, 1))
sketch7.addConstraint(Sketcher.Constraint("Coincident", 4, 2, 5, 1))
sketch7.addConstraint(Sketcher.Constraint("Coincident", 5, 2, 6, 1))
sketch7.addConstraint(Sketcher.Constraint("Coincident", 6, 2, 7, 1))
sketch7.addConstraint(Sketcher.Constraint("Coincident", 7, 2, 4, 1))
sketch7.addConstraint(Sketcher.Constraint("Coincident", 8, 2, 9, 1))
sketch7.addConstraint(Sketcher.Constraint("Coincident", 9, 2, 10, 1))
sketch7.addConstraint(Sketcher.Constraint("Coincident", 10, 2, 11, 1))
sketch7.addConstraint(Sketcher.Constraint("Coincident", 11, 2, 8, 1))
sketch7.addConstraint(Sketcher.Constraint("Coincident", 12, 2, 13, 1))
sketch7.addConstraint(Sketcher.Constraint("Coincident", 13, 2, 14, 1))
sketch7.addConstraint(Sketcher.Constraint("Coincident", 14, 2, 15, 1))
sketch7.addConstraint(Sketcher.Constraint("Coincident", 15, 2, 12, 1))
sketch7.addConstraint(Sketcher.Constraint("Coincident", 16, 2, 17, 1))
sketch7.addConstraint(Sketcher.Constraint("Coincident", 17, 2, 18, 1))
sketch7.addConstraint(Sketcher.Constraint("Coincident", 18, 2, 19, 1))
sketch7.addConstraint(Sketcher.Constraint("Coincident", 19, 2, 16, 1))
sketch7.addConstraint(Sketcher.Constraint("Horizontal", 0))
sketch7.addConstraint(Sketcher.Constraint("Vertical", 1))
sketch7.addConstraint(Sketcher.Constraint("Horizontal", 2))
sketch7.addConstraint(Sketcher.Constraint("Vertical", 3))
sketch7.addConstraint(Sketcher.Constraint("Horizontal", 4))
sketch7.addConstraint(Sketcher.Constraint("Vertical", 5))
sketch7.addConstraint(Sketcher.Constraint("Horizontal", 6))
sketch7.addConstraint(Sketcher.Constraint("Vertical", 7))
sketch7.addConstraint(Sketcher.Constraint("Horizontal", 8))
sketch7.addConstraint(Sketcher.Constraint("Vertical", 9))
sketch7.addConstraint(Sketcher.Constraint("Horizontal", 10))
sketch7.addConstraint(Sketcher.Constraint("Vertical", 11))
sketch7.addConstraint(Sketcher.Constraint("Horizontal", 12))
sketch7.addConstraint(Sketcher.Constraint("Vertical", 13))
sketch7.addConstraint(Sketcher.Constraint("Horizontal", 14))
sketch7.addConstraint(Sketcher.Constraint("Vertical", 15))
sketch7.addConstraint(Sketcher.Constraint("Horizontal", 16))
sketch7.addConstraint(Sketcher.Constraint("Vertical", 17))
sketch7.addConstraint(Sketcher.Constraint("Horizontal", 18))
sketch7.addConstraint(Sketcher.Constraint("Vertical", 19))
sketch7.addConstraint(Sketcher.Constraint("Vertical", 1, 2, 4, 2))
sketch7.addConstraint(Sketcher.Constraint("Vertical", 3, 2, 6, 2))
sketch7.addConstraint(Sketcher.Constraint("Vertical", 5, 2, 8, 2))
sketch7.addConstraint(Sketcher.Constraint("Vertical", 7, 2, 10, 2))
sketch7.addConstraint(Sketcher.Constraint("Vertical", 13, 2, 16, 2))
sketch7.addConstraint(Sketcher.Constraint("Vertical", 15, 2, 18, 2))
sketch7.addConstraint(Sketcher.Constraint("Equal", 10, 12))
sketch7.addConstraint(Sketcher.Constraint("Equal", 3, 5))
sketch7.addConstraint(Sketcher.Constraint("Equal", 7, 9))
sketch7.addConstraint(Sketcher.Constraint("Equal", 11, 13))
sketch7.addConstraint(Sketcher.Constraint("Equal", 15, 17))
sketch7.addConstraint(Sketcher.Constraint("DistanceX", 0, 1, 0, 2, Q("0.4 mm")))
sketch7.addConstraint(Sketcher.Constraint("DistanceY", 1, 1, 1, 2, Q("0.5 mm")))
sketch7.addConstraint(Sketcher.Constraint("DistanceY", 1, 2, 8, 2, Q("0.4 mm")))
sketch7.addConstraint(Sketcher.Constraint("DistanceY", 16, 2, 13, 2, Q("0.4 mm")))
sketch7.addConstraint(Sketcher.Constraint("DistanceX", 4, 2, 12, 2, Q("2 mm")))
sketch7.addConstraint(Sketcher.Constraint("DistanceY", 12, 2, -1, 1, Q("7.029 mm")))
sketch7.addConstraint(Sketcher.Constraint("DistanceY", 1, 2, 4, 2, Q("1.333 mm")))
sketch7.addConstraint(Sketcher.Constraint("DistanceX", -1, 1, 0, 2, Q("2.5807 mm")))
sketch7.addConstraint(Sketcher.Constraint("DistanceY", 0, 2, -1, 1, Q("8.8692 mm")))
pad7 = body.newObject("PartDesign::Pad", "Pad006")
pad7.Profile = sketch7
pad7.Length = 0.2
doc.recompute()

fillet4 = body.newObject("PartDesign::Fillet", "Fillet003")
fillet4.Base = (pad7, edges_at(pad7, [
    (2.181, -6.786, 1.7),
    (2.381, -6.536, 1.7),
    (2.381, -7.036, 1.7),
    (2.181, -7.036, 1.6),
    (2.181, -6.536, 1.6),
    (2.381, -7.469, 1.7),
    (2.181, -7.719, 1.7),
    (2.181, -7.469, 1.6),
    (2.381, -7.969, 1.7),
    (2.181, -7.969, 1.6),
    (2.381, -8.369, 1.7),
    (2.181, -8.369, 1.6),
    (2.181, -8.619, 1.7),
    (2.381, -8.869, 1.7),
    (2.181, -8.869, 1.6),
    (4.781, -7.029, 1.7),
    (4.981, -7.279, 1.7),
    (4.981, -7.029, 1.6),
    (4.981, -7.529, 1.6),
    (4.781, -7.529, 1.7),
    (4.781, -8.429, 1.7),
    (4.981, -8.429, 1.6),
    (4.981, -8.179, 1.7),
    (4.981, -7.929, 1.6),
    (4.781, -7.929, 1.7),
]))
fillet4.Radius = 0.05

doc.recompute()
